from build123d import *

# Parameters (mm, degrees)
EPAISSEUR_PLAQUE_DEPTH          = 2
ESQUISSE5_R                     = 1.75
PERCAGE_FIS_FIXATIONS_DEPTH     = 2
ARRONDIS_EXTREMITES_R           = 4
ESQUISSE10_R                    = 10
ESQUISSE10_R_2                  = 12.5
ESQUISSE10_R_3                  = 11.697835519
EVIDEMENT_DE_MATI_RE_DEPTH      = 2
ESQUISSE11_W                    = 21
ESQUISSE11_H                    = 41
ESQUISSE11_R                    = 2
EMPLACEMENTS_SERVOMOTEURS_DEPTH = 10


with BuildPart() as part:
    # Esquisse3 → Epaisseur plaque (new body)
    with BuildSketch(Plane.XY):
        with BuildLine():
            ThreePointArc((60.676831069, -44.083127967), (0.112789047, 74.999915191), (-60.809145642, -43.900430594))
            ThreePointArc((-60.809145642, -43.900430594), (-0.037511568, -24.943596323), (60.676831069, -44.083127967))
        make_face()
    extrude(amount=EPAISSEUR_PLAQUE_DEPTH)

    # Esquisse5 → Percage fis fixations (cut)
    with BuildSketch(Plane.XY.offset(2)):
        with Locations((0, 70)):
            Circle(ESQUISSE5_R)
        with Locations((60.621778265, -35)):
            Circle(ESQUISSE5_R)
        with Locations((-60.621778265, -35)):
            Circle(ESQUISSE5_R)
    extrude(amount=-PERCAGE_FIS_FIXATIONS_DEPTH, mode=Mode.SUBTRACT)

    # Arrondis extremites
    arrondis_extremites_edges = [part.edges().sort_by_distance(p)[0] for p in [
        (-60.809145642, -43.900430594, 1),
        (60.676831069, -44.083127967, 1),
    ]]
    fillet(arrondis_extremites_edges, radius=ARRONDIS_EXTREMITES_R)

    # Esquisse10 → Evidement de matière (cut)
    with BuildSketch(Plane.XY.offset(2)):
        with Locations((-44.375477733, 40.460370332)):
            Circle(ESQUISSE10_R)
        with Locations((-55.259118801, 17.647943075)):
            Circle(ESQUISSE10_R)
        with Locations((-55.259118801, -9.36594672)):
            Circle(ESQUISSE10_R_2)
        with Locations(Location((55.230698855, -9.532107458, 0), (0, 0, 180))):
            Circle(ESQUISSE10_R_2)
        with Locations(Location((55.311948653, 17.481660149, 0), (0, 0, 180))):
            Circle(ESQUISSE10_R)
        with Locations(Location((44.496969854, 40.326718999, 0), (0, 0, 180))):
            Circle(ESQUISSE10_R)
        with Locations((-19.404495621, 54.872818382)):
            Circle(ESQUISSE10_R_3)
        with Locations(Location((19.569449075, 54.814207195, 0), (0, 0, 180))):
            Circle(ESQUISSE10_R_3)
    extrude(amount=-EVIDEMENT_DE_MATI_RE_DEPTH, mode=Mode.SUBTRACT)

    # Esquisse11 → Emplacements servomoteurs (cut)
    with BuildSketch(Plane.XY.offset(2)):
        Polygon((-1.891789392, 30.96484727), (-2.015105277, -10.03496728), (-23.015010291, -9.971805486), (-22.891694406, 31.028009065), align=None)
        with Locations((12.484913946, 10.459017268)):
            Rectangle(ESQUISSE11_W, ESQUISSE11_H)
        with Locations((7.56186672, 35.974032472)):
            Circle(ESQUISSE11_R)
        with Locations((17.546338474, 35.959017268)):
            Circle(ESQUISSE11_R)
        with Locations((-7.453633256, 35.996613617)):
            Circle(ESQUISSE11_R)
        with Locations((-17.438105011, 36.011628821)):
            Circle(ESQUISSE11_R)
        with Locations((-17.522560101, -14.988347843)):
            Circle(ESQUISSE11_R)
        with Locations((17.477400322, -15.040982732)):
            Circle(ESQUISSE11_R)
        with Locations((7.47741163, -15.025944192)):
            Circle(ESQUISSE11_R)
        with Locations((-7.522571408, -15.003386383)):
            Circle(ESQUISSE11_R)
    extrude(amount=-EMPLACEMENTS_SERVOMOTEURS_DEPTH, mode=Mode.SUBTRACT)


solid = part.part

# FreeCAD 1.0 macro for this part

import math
import FreeCAD as App
import Part
import Sketcher
from FreeCAD import Vector
Q = App.Units.Quantity


def edges_at(feature, points):
    """Names of the edges that pass closest to the given points."""
    edges = feature.Shape.Edges
    near = lambda p: min(range(len(edges)), key=lambda i: edges[i].distToShape(Part.Vertex(*p))[0])
    return sorted({f"Edge{near(p) + 1}" for p in points})

doc = App.newDocument("Part")
body = doc.addObject("PartDesign::Body", "Body")

# Sketch on XY plane
sketch1 = body.newObject("Sketcher::SketchObject", "Sketch")
sketch1.AttachmentSupport = (doc.getObject("XY_Plane"), [""])
sketch1.MapMode = "FlatFace"
sketch1.addGeometry([
    Part.ArcOfCircle(Part.Circle(Vector(0, 0, 0), Vector(0, 0, 1), 75), math.radians(-36), math.radians(216)),
    Part.ArcOfCircle(Part.Circle(Vector(0, -131, 0), Vector(0, 0, 1), 106), math.radians(55), math.radians(125)),
], False)
sketch1.addConstraint([
    Sketcher.Constraint("Coincident", 0, 1, 1, 1),
    Sketcher.Constraint("Coincident", 1, 2, 0, 2),
    Sketcher.Constraint("Coincident", 0, 3, -1, 1),
    Sketcher.Constraint("Radius", 0, Q("75 mm")),
    Sketcher.Constraint("Radius", 1, Q("106.376249 mm")),
    Sketcher.Constraint("DistanceX", -1, 1, 0, 1, Q("60.676831 mm")),
    Sketcher.Constraint("DistanceY", 1, 2, -1, 1, Q("43.900431 mm")),
])
pad1 = body.newObject("PartDesign::Pad", "Pad")
pad1.Profile = sketch1
pad1.Length = 2

# Sketch on XY plane
sketch2 = body.newObject("Sketcher::SketchObject", "Sketch001")
sketch2.AttachmentSupport = (doc.getObject("XY_Plane"), [""])
sketch2.MapMode = "FlatFace"
sketch2.AttachmentOffset = App.Placement(Vector(0, 0, 2), App.Rotation())
sketch2.addGeometry([
    Part.Circle(Vector(0, 70, 0), Vector(0, 0, 1), 1.8),
    Part.Circle(Vector(60.6, -35, 0), Vector(0, 0, 1), 1.8),
    Part.Circle(Vector(-60.6, -35, 0), Vector(0, 0, 1), 1.8),
], False)
sketch2.addConstraint([
    Sketcher.Constraint("Equal", 0, 1),
    Sketcher.Constraint("Equal", 1, 2),
    Sketcher.Constraint("Symmetric", 1, 3, 2, 3, -2),
    Sketcher.Constraint("PointOnObject", 0, 3, -2),
    Sketcher.Constraint("Diameter", 0, Q("3.5 mm")),
    Sketcher.Constraint("DistanceY", -1, 1, 0, 3, Q("70 mm")),
    Sketcher.Constraint("DistanceY", 1, 3, -1, 1, Q("35 mm")),
    Sketcher.Constraint("DistanceX", -1, 1, 1, 3, Q("60.621778 mm")),
])
pocket1 = body.newObject("PartDesign::Pocket", "Pocket")
pocket1.Profile = sketch2
pocket1.Length = 2
doc.recompute()

fillet = body.newObject("PartDesign::Fillet", "Fillet")
fillet.Base = (pocket1, edges_at(pocket1, [(-60.809, -43.9, 1), (60.677, -44.083, 1)]))
fillet.Radius = 4

# Sketch on XY plane
sketch3 = body.newObject("Sketcher::SketchObject", "Sketch002")
sketch3.AttachmentSupport = (doc.getObject("XY_Plane"), [""])
sketch3.MapMode = "FlatFace"
sketch3.AttachmentOffset = App.Placement(Vector(0, 0, 2), App.Rotation())
sketch3.addGeometry([
    Part.Circle(Vector(-44, 40, 0), Vector(0, 0, 1), 10),  # 0
    Part.Circle(Vector(-55, 18, 0), Vector(0, 0, 1), 10),  # 1
    Part.Circle(Vector(-55, -9, 0), Vector(0, 0, 1), 12),  # 2
    Part.Circle(Vector(55, -10, 0), Vector(0, 0, 1), 12),  # 3
    Part.Circle(Vector(55, 17, 0), Vector(0, 0, 1), 10),  # 4
    Part.Circle(Vector(44, 40, 0), Vector(0, 0, 1), 10),  # 5
    Part.Circle(Vector(-19, 55, 0), Vector(0, 0, 1), 12),  # 6
    Part.Circle(Vector(20, 55, 0), Vector(0, 0, 1), 12),  # 7
], False)
sketch3.addConstraint([
    Sketcher.Constraint("Equal", 0, 1),
    Sketcher.Constraint("Equal", 2, 3),
    Sketcher.Constraint("Equal", 1, 4),
    Sketcher.Constraint("Equal", 4, 5),
    Sketcher.Constraint("Equal", 6, 7),
    Sketcher.Constraint("Vertical", 1, 3, 2, 3),
    Sketcher.Constraint("Diameter", 0, Q("20 mm")),
    Sketcher.Constraint("Diameter", 2, Q("25 mm")),
    Sketcher.Constraint("Diameter", 6, Q("23.395671 mm")),
    Sketcher.Constraint("DistanceX", -1, 1, 3, 3, Q("55.230699 mm")),
    Sketcher.Constraint("DistanceY", 5, 3, 6, 3, Q("14.546099 mm")),
    Sketcher.Constraint("DistanceX", 7, 3, 4, 3, Q("35.7425 mm")),
    Sketcher.Constraint("DistanceY", -1, 1, 0, 3, Q("40.46037 mm")),
    Sketcher.Constraint("DistanceX", 1, 3, -1, 1, Q("55.259119 mm")),
    Sketcher.Constraint("DistanceX", -1, 1, 4, 3, Q("55.311949 mm")),
    Sketcher.Constraint("DistanceY", -1, 1, 4, 3, Q("17.48166 mm")),
    Sketcher.Constraint("DistanceX", -1, 1, 5, 3, Q("44.49697 mm")),
    Sketcher.Constraint("DistanceY", -1, 1, 5, 3, Q("40.326719 mm")),
    Sketcher.Constraint("DistanceX", 1, 3, 0, 3, Q("10.883641 mm")),
    Sketcher.Constraint("DistanceY", 2, 3, 1, 3, Q("27.01389 mm")),
    Sketcher.Constraint("DistanceY", 3, 3, 2, 3, Q("0.166161 mm")),
    Sketcher.Constraint("DistanceY", 5, 3, 7, 3, Q("14.487488 mm")),
    Sketcher.Constraint("DistanceY", -1, 1, 1, 3, Q("17.647943 mm")),
    Sketcher.Constraint("DistanceX", 6, 3, -1, 1, Q("19.404496 mm")),
])
pocket2 = body.newObject("PartDesign::Pocket", "Pocket001")
pocket2.Profile = sketch3
pocket2.Length = 2

# Sketch on XY plane
sketch4 = body.newObject("Sketcher::SketchObject", "Sketch003")
sketch4.AttachmentSupport = (doc.getObject("XY_Plane"), [""])
sketch4.MapMode = "FlatFace"
sketch4.AttachmentOffset = App.Placement(Vector(0, 0, 2), App.Rotation())
sketch4.addGeometry([
    Part.LineSegment(Vector(-2, -10, 0), Vector(-1.9, 31, 0)),  # 0
    Part.LineSegment(Vector(-1.9, 31, 0), Vector(-22.9, 31, 0)),  # 1
    Part.LineSegment(Vector(-22.9, 31, 0), Vector(-23, -10, 0)),  # 2
    Part.LineSegment(Vector(-23, -10, 0), Vector(-2, -10, 0)),  # 3
    Part.LineSegment(Vector(2, 31, 0), Vector(2, -10, 0)),  # 4
    Part.LineSegment(Vector(2, -10, 0), Vector(23, -10, 0)),  # 5
    Part.LineSegment(Vector(23, -10, 0), Vector(23, 31, 0)),  # 6
    Part.LineSegment(Vector(23, 31, 0), Vector(2, 31, 0)),  # 7
    Part.Circle(Vector(7.6, 36, 0), Vector(0, 0, 1), 2),  # 8
    Part.Circle(Vector(17.5, 36, 0), Vector(0, 0, 1), 2),  # 9
    Part.Circle(Vector(-7.5, 36, 0), Vector(0, 0, 1), 2),  # 10
    Part.Circle(Vector(-17.4, 36, 0), Vector(0, 0, 1), 2),  # 11
    Part.Circle(Vector(-17.5, -15, 0), Vector(0, 0, 1), 2),  # 12
    Part.Circle(Vector(17.5, -15, 0), Vector(0, 0, 1), 2),  # 13
    Part.Circle(Vector(7.5, -15, 0), Vector(0, 0, 1), 2),  # 14
    Part.Circle(Vector(-7.5, -15, 0), Vector(0, 0, 1), 2),  # 15
], False)
sketch4.addConstraint([
    Sketcher.Constraint("Coincident", 0, 2, 1, 1),
    Sketcher.Constraint("Coincident", 1, 2, 2, 1),
    Sketcher.Constraint("Coincident", 2, 2, 3, 1),
    Sketcher.Constraint("Coincident", 3, 2, 0, 1),
    Sketcher.Constraint("Coincident", 4, 2, 5, 1),
    Sketcher.Constraint("Coincident", 5, 2, 6, 1),
    Sketcher.Constraint("Coincident", 6, 2, 7, 1),
    Sketcher.Constraint("Coincident", 7, 2, 4, 1),
    Sketcher.Constraint("Vertical", 4),
    Sketcher.Constraint("Horizontal", 5),
    Sketcher.Constraint("Vertical", 6),
    Sketcher.Constraint("Horizontal", 7),
    Sketcher.Constraint("Equal", 8, 9),
    Sketcher.Constraint("Equal", 9, 10),
    Sketcher.Constraint("Equal", 10, 11),
    Sketcher.Constraint("Equal", 11, 12),
    Sketcher.Constraint("Equal", 12, 13),
    Sketcher.Constraint("Equal", 13, 14),
    Sketcher.Constraint("Equal", 14, 15),
    Sketcher.Constraint("Perpendicular", 0, 1),
    Sketcher.Constraint("Perpendicular", 1, 2),
    Sketcher.Constraint("Perpendicular", 2, 3),
    Sketcher.Constraint("Diameter", 8, Q("4 mm")),
    Sketcher.Constraint("DistanceX", 5, 1, 5, 2, Q("21 mm")),
    Sketcher.Constraint("DistanceY", 4, 2, 4, 1, Q("41 mm")),
    Sketcher.Constraint("Distance", 0, Q("41 mm")),
    Sketcher.Constraint("Distance", 1, Q("21 mm")),
    Sketcher.Constraint("DistanceY", 13, 3, 9, 3, Q("51 mm")),
    Sketcher.Constraint("DistanceY", 15, 3, 10, 3, Q("51 mm")),
    Sketcher.Constraint("DistanceY", 13, 3, 4, 2, Q("5 mm")),
    Sketcher.Constraint("DistanceX", -1, 1, 13, 3, Q("17.4774 mm")),
    Sketcher.Constraint("DistanceX", 10, 3, 8, 3, Q("15.0155 mm")),
    Sketcher.Constraint("DistanceX", 12, 3, 9, 3, Q("35.068899 mm")),
    Sketcher.Constraint("DistanceX", -1, 1, 9, 3, Q("17.546338 mm")),
    Sketcher.Constraint("DistanceY", -1, 1, 11, 3, Q("36.011629 mm")),
    Sketcher.Constraint("DistanceX", -1, 1, 14, 3, Q("7.477412 mm")),
    Sketcher.Constraint("DistanceX", 15, 3, -1, 1, Q("7.522571 mm")),
    Sketcher.Constraint("DistanceX", 0, 2, -1, 1, Q("1.891789 mm")),
    Sketcher.Constraint("DistanceY", -1, 1, 1, 2, Q("31.028009 mm")),
    Sketcher.Constraint("DistanceX", 2, 2, -1, 1, Q("23.01501 mm")),
    Sketcher.Constraint("DistanceX", 8, 3, 9, 3, Q("9.984472 mm")),
    Sketcher.Constraint("DistanceY", 8, 3, 10, 3, Q("0.022581 mm")),
    Sketcher.Constraint("DistanceX", 11, 3, 10, 3, Q("9.984472 mm")),
    Sketcher.Constraint("DistanceY", 9, 3, 11, 3, Q("0.052612 mm")),
    Sketcher.Constraint("DistanceY", 12, 3, 10, 3, Q("50.984961 mm")),
    Sketcher.Constraint("DistanceY", 13, 3, 14, 3, Q("0.015039 mm")),
    Sketcher.Constraint("DistanceY", 15, 3, 2, 2, Q("5.031581 mm")),
    Sketcher.Constraint("DistanceX", 3, 2, 4, 2, Q("4.000019 mm")),
])
pocket3 = body.newObject("PartDesign::Pocket", "Pocket002")
pocket3.Profile = sketch4
pocket3.Length = 10

doc.recompute()
